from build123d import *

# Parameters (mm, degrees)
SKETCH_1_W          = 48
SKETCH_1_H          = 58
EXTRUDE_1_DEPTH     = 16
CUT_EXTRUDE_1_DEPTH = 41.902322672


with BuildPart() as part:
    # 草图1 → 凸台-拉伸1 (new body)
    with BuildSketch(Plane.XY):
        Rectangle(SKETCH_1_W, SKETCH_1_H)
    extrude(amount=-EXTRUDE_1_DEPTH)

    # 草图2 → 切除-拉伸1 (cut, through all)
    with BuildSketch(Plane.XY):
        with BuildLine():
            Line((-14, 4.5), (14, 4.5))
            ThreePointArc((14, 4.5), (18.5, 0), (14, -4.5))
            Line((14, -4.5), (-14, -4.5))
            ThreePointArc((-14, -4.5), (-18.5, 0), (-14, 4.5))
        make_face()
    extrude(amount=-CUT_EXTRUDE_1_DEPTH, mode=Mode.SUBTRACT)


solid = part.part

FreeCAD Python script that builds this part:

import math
import FreeCAD as App
import Part
import Sketcher

doc = App.newDocument("Part")
body = doc.addObject("PartDesign::Body", "Body")

# Sketch on XY plane
sketch1 = doc.addObject("Sketcher::SketchObject", "Sketch")
body.addObject(sketch1)
sketch1.AttachmentSupport = (doc.XY_Plane, [""])
sketch1.MapMode = "FlatFace"
sketch1.addGeometry(Part.LineSegment(App.Vector(-24, 29, 0), App.Vector(-24, -29, 0)), False)
sketch1.addGeometry(Part.LineSegment(App.Vector(-24, -29, 0), App.Vector(24, -29, 0)), False)
sketch1.addGeometry(Part.LineSegment(App.Vector(24, -29, 0), App.Vector(24, 29, 0)), False)
sketch1.addGeometry(Part.LineSegment(App.Vector(24, 29, 0), App.Vector(-24, 29, 0)), False)
sketch1.addConstraint(Sketcher.Constraint("Coincident", 0, 2, 1, 1))
sketch1.addConstraint(Sketcher.Constraint("Coincident", 1, 2, 2, 1))
sketch1.addConstraint(Sketcher.Constraint("Coincident", 2, 2, 3, 1))
sketch1.addConstraint(Sketcher.Constraint("Coincident", 3, 2, 0, 1))
sketch1.addConstraint(Sketcher.Constraint("Vertical", 0))
sketch1.addConstraint(Sketcher.Constraint("Horizontal", 1))
sketch1.addConstraint(Sketcher.Constraint("Vertical", 2))
sketch1.addConstraint(Sketcher.Constraint("Horizontal", 3))
sketch1.addConstraint(Sketcher.Constraint("Symmetric", 0, 2, 2, 2, -1, 1))
sketch1.addConstraint(Sketcher.Constraint("DistanceX", 1, 1, 1, 2, 48.0))
sketch1.addConstraint(Sketcher.Constraint("DistanceY", 0, 2, 0, 1, 58.0))
pad1 = doc.addObject("PartDesign::Pad", "Pad")
body.addObject(pad1)
pad1.Profile = sketch1
pad1.Length = 16
pad1.Reversed = True

# Sketch on XY plane
sketch2 = doc.addObject("Sketcher::SketchObject", "Sketch001")
body.addObject(sketch2)
sketch2.AttachmentSupport = (doc.XY_Plane, [""])
sketch2.MapMode = "FlatFace"
sketch2.addGeometry(Part.LineSegment(App.Vector(14, 4.5, 0), App.Vector(-14, 4.5, 0)), False)
sketch2.addGeometry(Part.ArcOfCircle(Part.Circle(App.Vector(-14, 0, 0), App.Vector(0, 0, 1), 4.5), math.radians(90), math.radians(270)), False)
sketch2.addGeometry(Part.LineSegment(App.Vector(-14, -4.5, 0), App.Vector(14, -4.5, 0)), False)
sketch2.addGeometry(Part.ArcOfCircle(Part.Circle(App.Vector(14, 0, 0), App.Vector(0, 0, 1), 4.5), math.radians(-90), math.radians(90)), False)
sketch2.addConstraint(Sketcher.Constraint("Tangent", 0, 2, 1, 1))
sketch2.addConstraint(Sketcher.Constraint("Tangent", 1, 2, 2, 1))
sketch2.addConstraint(Sketcher.Constraint("Tangent", 2, 2, 3, 1))
sketch2.addConstraint(Sketcher.Constraint("Tangent", 3, 2, 0, 1))
sketch2.addConstraint(Sketcher.Constraint("Horizontal", 0))
sketch2.addConstraint(Sketcher.Constraint("Horizontal", 2))
sketch2.addConstraint(Sketcher.Constraint("Symmetric", 1, 3, 3, 3, -1, 1))
sketch2.addConstraint(Sketcher.Constraint("Radius", 1, 4.5))
sketch2.addConstraint(Sketcher.Constraint("DistanceX", 0, 2, 0, 1, 28.0))
pocket1 = doc.addObject("PartDesign::Pocket", "Pocket")
body.addObject(pocket1)
pocket1.Profile = sketch2
pocket1.Type = "ThroughAll"

doc.recompute()
